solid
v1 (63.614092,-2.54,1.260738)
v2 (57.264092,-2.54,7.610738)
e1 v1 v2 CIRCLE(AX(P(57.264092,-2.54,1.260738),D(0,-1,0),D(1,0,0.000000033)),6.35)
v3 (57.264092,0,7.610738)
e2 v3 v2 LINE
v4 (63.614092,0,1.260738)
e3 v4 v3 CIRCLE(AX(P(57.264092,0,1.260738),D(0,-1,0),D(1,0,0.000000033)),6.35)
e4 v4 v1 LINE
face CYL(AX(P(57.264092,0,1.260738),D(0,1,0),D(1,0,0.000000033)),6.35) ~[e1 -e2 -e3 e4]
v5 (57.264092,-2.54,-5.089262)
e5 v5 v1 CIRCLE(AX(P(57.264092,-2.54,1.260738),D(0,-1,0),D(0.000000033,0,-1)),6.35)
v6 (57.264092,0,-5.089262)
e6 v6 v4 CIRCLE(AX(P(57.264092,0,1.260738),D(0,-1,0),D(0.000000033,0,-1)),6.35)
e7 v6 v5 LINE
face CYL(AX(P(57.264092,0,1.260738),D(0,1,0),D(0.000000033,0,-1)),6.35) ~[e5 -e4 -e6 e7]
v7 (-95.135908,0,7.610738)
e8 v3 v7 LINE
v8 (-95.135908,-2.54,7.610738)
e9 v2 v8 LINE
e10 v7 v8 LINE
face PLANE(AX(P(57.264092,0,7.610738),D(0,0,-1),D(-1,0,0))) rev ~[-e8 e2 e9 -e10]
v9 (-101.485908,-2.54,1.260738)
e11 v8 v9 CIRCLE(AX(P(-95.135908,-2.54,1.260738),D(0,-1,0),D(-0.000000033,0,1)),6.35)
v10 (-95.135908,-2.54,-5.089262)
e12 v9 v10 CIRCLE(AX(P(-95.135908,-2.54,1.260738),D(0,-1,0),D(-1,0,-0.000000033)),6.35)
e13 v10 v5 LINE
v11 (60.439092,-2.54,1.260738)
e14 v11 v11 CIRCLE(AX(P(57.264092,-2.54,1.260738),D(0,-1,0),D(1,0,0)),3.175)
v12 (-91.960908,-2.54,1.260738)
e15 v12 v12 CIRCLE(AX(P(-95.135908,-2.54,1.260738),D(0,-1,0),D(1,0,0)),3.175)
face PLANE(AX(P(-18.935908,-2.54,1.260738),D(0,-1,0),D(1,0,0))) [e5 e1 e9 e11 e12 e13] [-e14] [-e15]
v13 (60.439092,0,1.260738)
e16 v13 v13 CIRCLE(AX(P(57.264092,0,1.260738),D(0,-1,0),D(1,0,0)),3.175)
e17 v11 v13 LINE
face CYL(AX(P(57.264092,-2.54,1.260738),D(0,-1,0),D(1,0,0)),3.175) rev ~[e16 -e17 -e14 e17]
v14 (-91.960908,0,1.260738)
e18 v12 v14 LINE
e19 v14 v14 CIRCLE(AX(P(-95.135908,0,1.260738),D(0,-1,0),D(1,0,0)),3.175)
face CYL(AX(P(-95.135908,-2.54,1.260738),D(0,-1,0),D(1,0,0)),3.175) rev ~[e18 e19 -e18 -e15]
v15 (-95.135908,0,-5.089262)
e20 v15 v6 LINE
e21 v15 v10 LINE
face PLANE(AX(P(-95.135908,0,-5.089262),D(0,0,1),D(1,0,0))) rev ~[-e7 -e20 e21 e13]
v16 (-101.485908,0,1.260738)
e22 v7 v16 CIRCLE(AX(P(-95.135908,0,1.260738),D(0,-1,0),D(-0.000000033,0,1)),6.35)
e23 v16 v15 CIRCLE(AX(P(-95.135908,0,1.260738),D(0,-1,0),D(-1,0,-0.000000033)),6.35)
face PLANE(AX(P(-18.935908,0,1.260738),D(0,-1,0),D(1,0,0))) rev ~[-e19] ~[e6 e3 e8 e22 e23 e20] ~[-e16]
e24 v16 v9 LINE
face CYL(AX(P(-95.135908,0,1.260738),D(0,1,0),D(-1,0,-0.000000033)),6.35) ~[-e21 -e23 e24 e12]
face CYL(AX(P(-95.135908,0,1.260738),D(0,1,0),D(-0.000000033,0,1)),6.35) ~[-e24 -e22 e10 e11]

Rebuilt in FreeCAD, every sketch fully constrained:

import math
import FreeCAD as App
import Part
import Sketcher

V = App.Vector
Q = App.Units.Quantity

doc = App.newDocument("Part")
body = doc.addObject("PartDesign::Body", "Body")

sketch1 = doc.addObject("Sketcher::SketchObject", "Sketch")
body.addObject(sketch1)
sketch1.AttachmentSupport = (doc.XZ_Plane, [""])
sketch1.MapMode = "FlatFace"
sketch1.addGeometry([
    Part.ArcOfCircle(Part.Circle(V(-95, 1, 0), V(0, 0, 1), 6), math.radians(-180), math.radians(-90)),
    Part.LineSegment(V(-95, -5, 0), V(57, -5, 0)),
    Part.ArcOfCircle(Part.Circle(V(57, 1, 0), V(0, 0, 1), 6), math.radians(-90), math.radians(0)),
    Part.ArcOfCircle(Part.Circle(V(57, 1, 0), V(0, 0, 1), 6), math.radians(0), math.radians(90)),
    Part.LineSegment(V(57, 8, 0), V(-95, 8, 0)),
    Part.ArcOfCircle(Part.Circle(V(-95, 1, 0), V(0, 0, 1), 6), math.radians(90), math.radians(180)),
], False)
sketch1.addConstraint([
    Sketcher.Constraint("Tangent", 0, 2, 1, 1),
    Sketcher.Constraint("Tangent", 1, 2, 2, 1),
    Sketcher.Constraint("Tangent", 2, 2, 3, 1),
    Sketcher.Constraint("Tangent", 3, 2, 4, 1),
    Sketcher.Constraint("Tangent", 4, 2, 5, 1),
    Sketcher.Constraint("Tangent", 5, 2, 0, 1),
    Sketcher.Constraint("Horizontal", 1),
    Sketcher.Constraint("Horizontal", 4),
    Sketcher.Constraint("Equal", 0, 2),
    Sketcher.Constraint("Equal", 2, 3),
    Sketcher.Constraint("Horizontal", 5, 3, 2, 2),
    Sketcher.Constraint("Horizontal", 2, 2, 5, 2),
    Sketcher.Constraint("DistanceX", 1, 1, 1, 2, Q("6 in")),
    Sketcher.Constraint("Radius", 0, Q("0.25 in")),
    Sketcher.Constraint("DistanceY", -1, 1, 0, 3, 1.260738),
    Sketcher.Constraint("DistanceX", -1, 1, 2, 3, 57.264092),
])
pad1 = doc.addObject("PartDesign::Pad", "Pad")
body.addObject(pad1)
pad1.Profile = sketch1
pad1.Length = Q("0.1 in")

sketch2 = doc.addObject("Sketcher::SketchObject", "Sketch001")
body.addObject(sketch2)
sketch2.AttachmentSupport = (doc.XZ_Plane, [""])
sketch2.MapMode = "FlatFace"
sketch2.AttachmentOffset = App.Placement(V(0, 0, 0.1 * 25.4), App.Rotation())
sketch2.addGeometry([
    Part.Circle(V(-95.1, 1.3, 0), V(0, 0, 1), 3.2),
    Part.Circle(V(57.3, 1.3, 0), V(0, 0, 1), 3.2),
], False)
sketch2.addConstraint([
    Sketcher.Constraint("Equal", 0, 1),
    Sketcher.Constraint("Horizontal", 0, 3, 1, 3),
    Sketcher.Constraint("Diameter", 0, Q("0.25 in")),
    Sketcher.Constraint("DistanceX", 0, 3, 1, 3, Q("6 in")),
    Sketcher.Constraint("DistanceX", 0, 3, -1, 1, 95.135908),
    Sketcher.Constraint("DistanceY", -1, 1, 0, 3, 1.260738),
])
pocket1 = doc.addObject("PartDesign::Pocket", "Pocket")
body.addObject(pocket1)
pocket1.Profile = sketch2
pocket1.Type = "ThroughAll"

doc.recompute()
